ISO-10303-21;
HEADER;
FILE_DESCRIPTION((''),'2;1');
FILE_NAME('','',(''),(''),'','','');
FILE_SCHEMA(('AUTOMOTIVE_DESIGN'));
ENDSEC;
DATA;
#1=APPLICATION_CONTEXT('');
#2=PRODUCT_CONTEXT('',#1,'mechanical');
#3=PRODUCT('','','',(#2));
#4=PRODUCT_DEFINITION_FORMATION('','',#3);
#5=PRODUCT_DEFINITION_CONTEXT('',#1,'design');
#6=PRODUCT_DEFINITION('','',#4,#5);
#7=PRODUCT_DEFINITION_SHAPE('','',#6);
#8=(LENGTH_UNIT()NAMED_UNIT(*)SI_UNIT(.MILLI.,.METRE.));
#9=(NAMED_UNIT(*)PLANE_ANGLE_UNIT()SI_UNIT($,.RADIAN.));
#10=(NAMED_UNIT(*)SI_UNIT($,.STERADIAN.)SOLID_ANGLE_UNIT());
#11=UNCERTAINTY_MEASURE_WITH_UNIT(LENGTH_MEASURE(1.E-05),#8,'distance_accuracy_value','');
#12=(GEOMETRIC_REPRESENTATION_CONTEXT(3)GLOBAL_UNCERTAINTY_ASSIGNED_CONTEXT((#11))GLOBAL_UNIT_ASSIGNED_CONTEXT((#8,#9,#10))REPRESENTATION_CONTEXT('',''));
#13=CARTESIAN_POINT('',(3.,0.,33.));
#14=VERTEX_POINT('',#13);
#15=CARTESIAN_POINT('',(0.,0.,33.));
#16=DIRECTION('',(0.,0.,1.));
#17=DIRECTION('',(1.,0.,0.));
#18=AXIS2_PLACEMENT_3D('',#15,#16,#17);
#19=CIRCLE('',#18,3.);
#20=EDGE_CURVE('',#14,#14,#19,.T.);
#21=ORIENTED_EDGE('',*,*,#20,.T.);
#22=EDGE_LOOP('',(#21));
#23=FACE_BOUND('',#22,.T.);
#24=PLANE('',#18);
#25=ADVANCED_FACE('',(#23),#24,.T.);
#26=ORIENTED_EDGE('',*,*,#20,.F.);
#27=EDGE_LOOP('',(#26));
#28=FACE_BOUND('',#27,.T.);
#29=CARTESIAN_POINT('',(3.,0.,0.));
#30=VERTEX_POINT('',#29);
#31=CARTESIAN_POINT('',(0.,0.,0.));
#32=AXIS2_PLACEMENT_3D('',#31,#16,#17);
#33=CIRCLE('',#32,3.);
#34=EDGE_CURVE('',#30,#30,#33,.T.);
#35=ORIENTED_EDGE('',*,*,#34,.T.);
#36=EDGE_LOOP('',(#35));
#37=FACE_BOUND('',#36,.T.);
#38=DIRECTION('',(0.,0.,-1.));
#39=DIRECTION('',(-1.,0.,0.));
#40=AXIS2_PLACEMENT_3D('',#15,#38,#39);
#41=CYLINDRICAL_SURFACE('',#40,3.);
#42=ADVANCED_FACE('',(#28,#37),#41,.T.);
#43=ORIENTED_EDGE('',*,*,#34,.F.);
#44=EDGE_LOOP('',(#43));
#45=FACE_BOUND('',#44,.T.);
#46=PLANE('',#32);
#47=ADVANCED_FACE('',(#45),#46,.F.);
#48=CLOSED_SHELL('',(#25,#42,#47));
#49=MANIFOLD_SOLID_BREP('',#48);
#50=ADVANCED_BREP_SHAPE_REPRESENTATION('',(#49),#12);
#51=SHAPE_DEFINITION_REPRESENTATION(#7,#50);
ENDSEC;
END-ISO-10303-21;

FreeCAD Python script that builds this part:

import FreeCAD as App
import Part
import Sketcher

doc = App.newDocument("Part")
params = doc.addObject("Spreadsheet::Sheet", "Params")
for row, (alias, value) in enumerate([
    ("sketch1_diameter", "6 mm"),
    ("pad1_length", "33 mm"),
], start=1):
    params.set(f"A{row}", alias)
    params.set(f"B{row}", "=" + value)
    params.setAlias(f"B{row}", alias)

body = doc.addObject("PartDesign::Body", "Body")

sketch1 = body.newObject("Sketcher::SketchObject", "Sketch")
sketch1.AttachmentSupport = (doc.getObject("XY_Plane"), [""])
sketch1.MapMode = "FlatFace"
sketch1.addGeometry(Part.Circle(App.Vector(0, 0, 0), App.Vector(0, 0, 1), 3), False)
sketch1.addConstraint([
    Sketcher.Constraint("Coincident", 0, 3, -1, 1),
    Sketcher.Constraint("Diameter", 0, 6.0),
])
sketch1.setExpression("Constraints[1]", "Params.sketch1_diameter")
pad1 = body.newObject("PartDesign::Pad", "Pad")
pad1.Profile = sketch1
pad1.setExpression("Length", "Params.pad1_length")

doc.recompute()
